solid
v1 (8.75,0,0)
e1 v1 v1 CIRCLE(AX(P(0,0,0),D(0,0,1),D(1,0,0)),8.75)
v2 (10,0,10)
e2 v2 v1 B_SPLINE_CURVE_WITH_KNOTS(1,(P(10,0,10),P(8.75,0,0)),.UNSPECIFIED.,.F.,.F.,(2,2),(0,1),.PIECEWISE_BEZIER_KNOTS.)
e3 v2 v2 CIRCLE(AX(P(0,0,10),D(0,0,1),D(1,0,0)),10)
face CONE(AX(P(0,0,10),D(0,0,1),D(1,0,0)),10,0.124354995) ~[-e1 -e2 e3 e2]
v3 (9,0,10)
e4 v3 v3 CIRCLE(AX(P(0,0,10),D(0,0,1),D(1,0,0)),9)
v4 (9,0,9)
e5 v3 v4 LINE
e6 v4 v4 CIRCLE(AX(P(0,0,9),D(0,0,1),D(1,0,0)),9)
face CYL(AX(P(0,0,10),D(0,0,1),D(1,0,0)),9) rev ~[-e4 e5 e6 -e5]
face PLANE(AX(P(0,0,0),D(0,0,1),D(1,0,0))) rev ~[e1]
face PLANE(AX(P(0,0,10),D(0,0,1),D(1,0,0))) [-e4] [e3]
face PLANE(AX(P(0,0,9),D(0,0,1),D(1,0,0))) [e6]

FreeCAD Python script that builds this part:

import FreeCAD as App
import Part
import Sketcher
Q = App.Units.Quantity

doc = App.newDocument("Part")
body = doc.addObject("PartDesign::Body", "Body")

# Sketch on XY plane
sketch1 = doc.addObject("Sketcher::SketchObject", "Sketch")
body.addObject(sketch1)
sketch1.AttachmentSupport = (doc.XY_Plane, [""])
sketch1.MapMode = "FlatFace"
sketch1.AttachmentOffset = App.Placement(App.Vector(0, 0, 10), App.Rotation())
sketch1.addGeometry(Part.Circle(App.Vector(0, 0, 0), App.Vector(0, 0, 1), 10), False)
sketch1.addConstraint(Sketcher.Constraint("Coincident", 0, 3, -1, 1))
sketch1.addConstraint(Sketcher.Constraint("Diameter", 0, Q("20 mm")))

# Sketch on XY plane
sketch2 = doc.addObject("Sketcher::SketchObject", "Sketch001")
body.addObject(sketch2)
sketch2.AttachmentSupport = (doc.XY_Plane, [""])
sketch2.MapMode = "FlatFace"
sketch2.addGeometry(Part.Circle(App.Vector(0, 0, 0), App.Vector(0, 0, 1), 9), False)
sketch2.addConstraint(Sketcher.Constraint("Coincident", 0, 3, -1, 1))
sketch2.addConstraint(Sketcher.Constraint("Diameter", 0, Q("17.5 mm")))

additiveloft = doc.addObject("PartDesign::AdditiveLoft", "AdditiveLoft")
body.addObject(additiveloft)
additiveloft.Profile = sketch1
additiveloft.Sections = [sketch2]

# Sketch on XY plane
sketch3 = doc.addObject("Sketcher::SketchObject", "Sketch002")
body.addObject(sketch3)
sketch3.AttachmentSupport = (doc.XY_Plane, [""])
sketch3.MapMode = "FlatFace"
sketch3.AttachmentOffset = App.Placement(App.Vector(0, 0, 10), App.Rotation())
sketch3.addGeometry(Part.Circle(App.Vector(0, 0, 0), App.Vector(0, 0, 1), 9), False)
sketch3.addConstraint(Sketcher.Constraint("Coincident", 0, 3, -1, 1))
sketch3.addConstraint(Sketcher.Constraint("Diameter", 0, Q("18 mm")))
pocket1 = doc.addObject("PartDesign::Pocket", "Pocket")
body.addObject(pocket1)
pocket1.Profile = sketch3
pocket1.Length = 1

doc.recompute()
